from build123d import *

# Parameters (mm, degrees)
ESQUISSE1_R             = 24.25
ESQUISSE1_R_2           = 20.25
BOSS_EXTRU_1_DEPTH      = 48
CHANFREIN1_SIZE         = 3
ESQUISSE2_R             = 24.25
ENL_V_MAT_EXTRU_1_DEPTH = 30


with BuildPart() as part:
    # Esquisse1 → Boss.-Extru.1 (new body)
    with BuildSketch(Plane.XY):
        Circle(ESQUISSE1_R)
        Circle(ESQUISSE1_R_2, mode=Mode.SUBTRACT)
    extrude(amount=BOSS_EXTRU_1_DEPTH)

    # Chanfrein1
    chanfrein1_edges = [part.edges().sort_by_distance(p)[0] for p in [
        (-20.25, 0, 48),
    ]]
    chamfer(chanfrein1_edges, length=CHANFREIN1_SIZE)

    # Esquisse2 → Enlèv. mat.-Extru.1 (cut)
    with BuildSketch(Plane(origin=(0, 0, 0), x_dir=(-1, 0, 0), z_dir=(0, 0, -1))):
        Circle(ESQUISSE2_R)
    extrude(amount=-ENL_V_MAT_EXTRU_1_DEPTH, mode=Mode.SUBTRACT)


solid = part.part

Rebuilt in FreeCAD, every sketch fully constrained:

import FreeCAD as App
import Part
import Sketcher
from FreeCAD import Vector


def edges_at(feature, points):
    """Names of the edges that pass closest to the given points."""
    edges = feature.Shape.Edges
    near = lambda p: min(range(len(edges)), key=lambda i: edges[i].distToShape(Part.Vertex(*p))[0])
    return sorted({f"Edge{near(p) + 1}" for p in points})

doc = App.newDocument("Part")
params = doc.addObject("Spreadsheet::Sheet", "Params")
for row, (alias, value) in enumerate([
    ("sketch1_diameter", "48.5 mm"),
    ("sketch1_diameter2", "40.5 mm"),
    ("pad1_length", "48 mm"),
    ("chamfer_size", "3 mm"),
    ("sketch2_diameter", "48.5 mm"),
    ("pocket1_length", "30 mm"),
], start=1):
    params.set(f"A{row}", alias)
    params.set(f"B{row}", "=" + value)
    params.setAlias(f"B{row}", alias)

body = doc.addObject("PartDesign::Body", "Body")

# Sketch on XY plane
sketch1 = body.newObject("Sketcher::SketchObject", "Sketch")
sketch1.AttachmentSupport = (doc.getObject("XY_Plane"), [""])
sketch1.MapMode = "FlatFace"
sketch1.addGeometry(Part.Circle(Vector(0, 0, 0), Vector(0, 0, 1), 24.25), False)
sketch1.addGeometry(Part.Circle(Vector(0, 0, 0), Vector(0, 0, 1), 20.25), False)
sketch1.addConstraint(Sketcher.Constraint("Coincident", 0, 3, -1, 1))
sketch1.addConstraint(Sketcher.Constraint("Coincident", 1, 3, -1, 1))
sketch1.addConstraint(Sketcher.Constraint("Diameter", 0, 48.5))
sketch1.addConstraint(Sketcher.Constraint("Diameter", 1, 40.5))
sketch1.setExpression("Constraints[2]", "Params.sketch1_diameter")
sketch1.setExpression("Constraints[3]", "Params.sketch1_diameter2")
pad1 = body.newObject("PartDesign::Pad", "Pad")
pad1.Profile = sketch1
pad1.setExpression("Length", "Params.pad1_length")
doc.recompute()

chamfer = body.newObject("PartDesign::Chamfer", "Chamfer")
chamfer.Base = (pad1, edges_at(pad1, [(-20.25, 0, 48)]))
chamfer.setExpression("Size", "Params.chamfer_size")

# Sketch on XY plane
sketch2 = body.newObject("Sketcher::SketchObject", "Sketch001")
sketch2.AttachmentSupport = (doc.getObject("XY_Plane"), [""])
sketch2.MapMode = "FlatFace"
sketch2.addGeometry(Part.Circle(Vector(0, 0, 0), Vector(0, 0, 1), 24.25), False)
sketch2.addConstraint(Sketcher.Constraint("Coincident", 0, 3, -1, 1))
sketch2.addConstraint(Sketcher.Constraint("Diameter", 0, 48.5))
sketch2.setExpression("Constraints[1]", "Params.sketch2_diameter")
pocket1 = body.newObject("PartDesign::Pocket", "Pocket")
pocket1.Profile = sketch2
pocket1.setExpression("Length", "Params.pocket1_length")
pocket1.Reversed = True

doc.recompute()
